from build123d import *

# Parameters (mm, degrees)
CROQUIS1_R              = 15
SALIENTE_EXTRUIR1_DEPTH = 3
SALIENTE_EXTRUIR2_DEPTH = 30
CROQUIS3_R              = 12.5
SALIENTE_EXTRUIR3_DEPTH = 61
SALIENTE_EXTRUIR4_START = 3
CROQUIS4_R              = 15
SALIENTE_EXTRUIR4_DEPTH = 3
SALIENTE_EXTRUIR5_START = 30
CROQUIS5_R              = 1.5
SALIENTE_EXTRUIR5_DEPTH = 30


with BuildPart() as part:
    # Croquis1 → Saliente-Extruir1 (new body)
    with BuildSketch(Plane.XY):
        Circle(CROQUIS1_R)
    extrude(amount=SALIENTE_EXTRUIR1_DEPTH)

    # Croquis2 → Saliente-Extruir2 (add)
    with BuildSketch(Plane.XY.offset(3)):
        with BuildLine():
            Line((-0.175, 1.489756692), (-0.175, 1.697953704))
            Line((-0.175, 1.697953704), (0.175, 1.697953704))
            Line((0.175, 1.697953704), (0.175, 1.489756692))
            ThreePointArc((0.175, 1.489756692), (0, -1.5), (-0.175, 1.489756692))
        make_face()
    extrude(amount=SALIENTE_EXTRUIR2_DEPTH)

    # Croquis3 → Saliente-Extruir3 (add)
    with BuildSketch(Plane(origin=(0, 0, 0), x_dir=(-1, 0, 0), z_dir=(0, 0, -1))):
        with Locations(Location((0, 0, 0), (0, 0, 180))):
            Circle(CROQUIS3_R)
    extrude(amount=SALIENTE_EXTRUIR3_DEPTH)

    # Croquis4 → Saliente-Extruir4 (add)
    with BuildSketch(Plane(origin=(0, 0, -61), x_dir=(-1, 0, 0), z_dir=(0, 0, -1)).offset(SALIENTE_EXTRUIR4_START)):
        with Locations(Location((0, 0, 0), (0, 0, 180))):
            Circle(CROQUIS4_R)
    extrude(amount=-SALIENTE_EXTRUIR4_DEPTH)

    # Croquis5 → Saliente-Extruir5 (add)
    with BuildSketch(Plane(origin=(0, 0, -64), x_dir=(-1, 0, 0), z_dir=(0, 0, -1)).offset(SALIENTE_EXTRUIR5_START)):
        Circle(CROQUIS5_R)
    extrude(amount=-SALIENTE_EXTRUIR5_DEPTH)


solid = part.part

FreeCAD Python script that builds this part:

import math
import FreeCAD as App
import Part
import Sketcher
from FreeCAD import Vector

doc = App.newDocument("Part")
body = doc.addObject("PartDesign::Body", "Body")

# Sketch on XY plane
sketch1 = body.newObject("Sketcher::SketchObject", "Sketch")
sketch1.AttachmentSupport = (doc.getObject("XY_Plane"), [""])
sketch1.MapMode = "FlatFace"
sketch1.addGeometry(Part.Circle(Vector(0, 0, 0), Vector(0, 0, 1), 15), False)
sketch1.addConstraint(Sketcher.Constraint("Coincident", 0, 3, -1, 1))
sketch1.addConstraint(Sketcher.Constraint("Diameter", 0, 30.0))
pad1 = body.newObject("PartDesign::Pad", "Pad")
pad1.Profile = sketch1
pad1.Length = 3

# Sketch on XY plane
sketch2 = body.newObject("Sketcher::SketchObject", "Sketch001")
sketch2.AttachmentSupport = (doc.getObject("XY_Plane"), [""])
sketch2.MapMode = "FlatFace"
sketch2.AttachmentOffset = App.Placement(Vector(0, 0, 3), App.Rotation())
sketch2.addGeometry(Part.LineSegment(Vector(-0.175, 1.697954, 0), Vector(-0.175, 1.489757, 0)), False)
sketch2.addGeometry(Part.ArcOfCircle(Part.Circle(Vector(0, 0, 0), Vector(0, 0, 1), 1.5), math.radians(96.699765), math.radians(443.300235)), False)
sketch2.addGeometry(Part.LineSegment(Vector(0.175, 1.489757, 0), Vector(0.175, 1.697954, 0)), False)
sketch2.addGeometry(Part.LineSegment(Vector(0.175, 1.697954, 0), Vector(-0.175, 1.697954, 0)), False)
sketch2.addConstraint(Sketcher.Constraint("Coincident", 0, 2, 1, 1))
sketch2.addConstraint(Sketcher.Constraint("Coincident", 1, 2, 2, 1))
sketch2.addConstraint(Sketcher.Constraint("Coincident", 2, 2, 3, 1))
sketch2.addConstraint(Sketcher.Constraint("Coincident", 3, 2, 0, 1))
sketch2.addConstraint(Sketcher.Constraint("Vertical", 0))
sketch2.addConstraint(Sketcher.Constraint("Vertical", 2))
sketch2.addConstraint(Sketcher.Constraint("Horizontal", 3))
sketch2.addConstraint(Sketcher.Constraint("Coincident", 1, 3, -1, 1))
sketch2.addConstraint(Sketcher.Constraint("Horizontal", 0, 2, 1, 2))
sketch2.addConstraint(Sketcher.Constraint("Radius", 1, 1.5))
sketch2.addConstraint(Sketcher.Constraint("DistanceX", 3, 2, 3, 1, 0.35))
sketch2.addConstraint(Sketcher.Constraint("DistanceY", 0, 2, 0, 1, 0.208197))
pad2 = body.newObject("PartDesign::Pad", "Pad001")
pad2.Profile = sketch2
pad2.Length = 30

# Sketch on XY plane
sketch3 = body.newObject("Sketcher::SketchObject", "Sketch002")
sketch3.AttachmentSupport = (doc.getObject("XY_Plane"), [""])
sketch3.MapMode = "FlatFace"
sketch3.addGeometry(Part.Circle(Vector(0, 0, 0), Vector(0, 0, 1), 12.5), False)
sketch3.addConstraint(Sketcher.Constraint("Coincident", 0, 3, -1, 1))
sketch3.addConstraint(Sketcher.Constraint("Diameter", 0, 25.0))
pad3 = body.newObject("PartDesign::Pad", "Pad002")
pad3.Profile = sketch3
pad3.Length = 61
pad3.Reversed = True

# Sketch on XY plane
sketch4 = body.newObject("Sketcher::SketchObject", "Sketch003")
sketch4.AttachmentSupport = (doc.getObject("XY_Plane"), [""])
sketch4.MapMode = "FlatFace"
sketch4.AttachmentOffset = App.Placement(Vector(0, 0, -64), App.Rotation())
sketch4.addGeometry(Part.Circle(Vector(0, 0, 0), Vector(0, 0, 1), 15), False)
sketch4.addConstraint(Sketcher.Constraint("Coincident", 0, 3, -1, 1))
sketch4.addConstraint(Sketcher.Constraint("Diameter", 0, 30.0))
pad4 = body.newObject("PartDesign::Pad", "Pad003")
pad4.Profile = sketch4
pad4.Length = 3

# Sketch on XY plane
sketch5 = body.newObject("Sketcher::SketchObject", "Sketch004")
sketch5.AttachmentSupport = (doc.getObject("XY_Plane"), [""])
sketch5.MapMode = "FlatFace"
sketch5.AttachmentOffset = App.Placement(Vector(0, 0, -94), App.Rotation())
sketch5.addGeometry(Part.Circle(Vector(0, 0, 0), Vector(0, 0, 1), 1.5), False)
sketch5.addConstraint(Sketcher.Constraint("Coincident", 0, 3, -1, 1))
sketch5.addConstraint(Sketcher.Constraint("Diameter", 0, 3.0))
pad5 = body.newObject("PartDesign::Pad", "Pad004")
pad5.Profile = sketch5
pad5.Length = 30

doc.recompute()
